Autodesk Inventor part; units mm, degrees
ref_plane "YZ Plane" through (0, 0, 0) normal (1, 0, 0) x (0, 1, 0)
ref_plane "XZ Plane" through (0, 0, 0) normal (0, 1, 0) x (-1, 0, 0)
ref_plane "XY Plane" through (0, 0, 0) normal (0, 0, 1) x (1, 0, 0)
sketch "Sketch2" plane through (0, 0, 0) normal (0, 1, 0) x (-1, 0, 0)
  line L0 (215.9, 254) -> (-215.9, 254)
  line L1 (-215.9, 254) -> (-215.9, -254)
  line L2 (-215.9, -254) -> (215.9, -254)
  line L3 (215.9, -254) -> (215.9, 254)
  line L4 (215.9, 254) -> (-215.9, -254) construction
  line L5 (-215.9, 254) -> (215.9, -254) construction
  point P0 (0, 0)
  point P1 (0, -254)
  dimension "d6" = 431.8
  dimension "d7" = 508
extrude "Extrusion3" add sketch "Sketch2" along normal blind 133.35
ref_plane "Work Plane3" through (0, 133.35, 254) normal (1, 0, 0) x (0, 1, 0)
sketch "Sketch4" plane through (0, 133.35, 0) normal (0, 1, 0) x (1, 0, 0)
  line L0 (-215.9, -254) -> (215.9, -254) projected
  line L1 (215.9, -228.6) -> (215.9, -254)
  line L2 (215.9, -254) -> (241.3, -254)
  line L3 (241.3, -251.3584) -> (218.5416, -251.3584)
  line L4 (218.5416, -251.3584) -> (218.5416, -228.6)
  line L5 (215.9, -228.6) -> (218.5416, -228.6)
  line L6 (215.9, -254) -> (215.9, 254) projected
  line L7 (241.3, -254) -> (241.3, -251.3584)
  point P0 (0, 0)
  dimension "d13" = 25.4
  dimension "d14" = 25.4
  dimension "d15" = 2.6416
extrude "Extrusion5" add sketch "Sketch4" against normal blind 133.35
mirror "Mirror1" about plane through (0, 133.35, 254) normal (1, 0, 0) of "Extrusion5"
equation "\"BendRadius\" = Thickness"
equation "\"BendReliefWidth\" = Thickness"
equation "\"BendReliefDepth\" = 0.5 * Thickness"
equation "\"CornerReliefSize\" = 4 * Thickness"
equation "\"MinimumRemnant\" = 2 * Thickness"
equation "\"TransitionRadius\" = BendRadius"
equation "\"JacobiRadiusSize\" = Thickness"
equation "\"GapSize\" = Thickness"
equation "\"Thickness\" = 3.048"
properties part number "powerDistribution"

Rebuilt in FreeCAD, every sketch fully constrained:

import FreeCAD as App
import Part
import Sketcher
Q = App.Units.Quantity


def add_polygon(sketch, points):
    """Adds a closed chain of lines whose ends are joined by coincident constraints."""
    first, n = sketch.GeometryCount, len(points)
    for a, b in zip(points, points[1:] + points[:1]):
        sketch.addGeometry(Part.LineSegment(App.Vector(*a, 0), App.Vector(*b, 0)), False)
    for i in range(n):
        sketch.addConstraint(Sketcher.Constraint("Coincident", first + i, 2, first + (i + 1) % n, 1))

doc = App.newDocument("Part")
body = doc.addObject("PartDesign::Body", "Body")

# Sketch on XZ plane
sketch1 = doc.addObject("Sketcher::SketchObject", "Sketch")
body.addObject(sketch1)
sketch1.AttachmentSupport = (doc.XZ_Plane, [""])
sketch1.MapMode = "FlatFace"
add_polygon(sketch1, [(-216, -254), (-216, 254), (216, 254), (216, -254)])  # lines 0-3
sketch1.addConstraint([
    Sketcher.Constraint("Vertical", 0),
    Sketcher.Constraint("Horizontal", 1),
    Sketcher.Constraint("Vertical", 2),
    Sketcher.Constraint("Horizontal", 3),
    Sketcher.Constraint("Symmetric", 0, 2, 2, 2, -1, 1),
    Sketcher.Constraint("DistanceX", 1, 1, 1, 2, Q("17 in")),
    Sketcher.Constraint("DistanceY", 0, 1, 0, 2, Q("20 in")),
])
pad1 = doc.addObject("PartDesign::Pad", "Pad")
body.addObject(pad1)
pad1.Profile = sketch1
pad1.Length = Q("5.25 in")
pad1.Reversed = True

# Sketch on XZ plane
sketch2 = doc.addObject("Sketcher::SketchObject", "Sketch001")
body.addObject(sketch2)
sketch2.AttachmentSupport = (doc.XZ_Plane, [""])
sketch2.MapMode = "FlatFace"
sketch2.AttachmentOffset = App.Placement(App.Vector(0, 0, -5.25 * 25.4), App.Rotation())
add_polygon(sketch2, [(218.5, 228.6), (215.9, 228.6), (215.9, 254), (241.3, 254), (241.3, 251.4), (218.5, 251.4)])  # lines 0-5
sketch2.addConstraint([
    Sketcher.Constraint("Horizontal", 0),
    Sketcher.Constraint("Vertical", 1),
    Sketcher.Constraint("Horizontal", 2),
    Sketcher.Constraint("Vertical", 3),
    Sketcher.Constraint("Horizontal", 4),
    Sketcher.Constraint("Vertical", 5),
    Sketcher.Constraint("Equal", 2, 1),
    Sketcher.Constraint("Equal", 0, 3),
    Sketcher.Constraint("DistanceX", 2, 1, 2, 2, Q("1 in")),
    Sketcher.Constraint("DistanceX", 0, 2, 0, 1, Q("0.104 in")),
    Sketcher.Constraint("DistanceY", -1, 1, 0, 2, Q("9 in")),
    Sketcher.Constraint("DistanceX", -1, 1, 0, 2, Q("8.5 in")),
])
pad2 = doc.addObject("PartDesign::Pad", "Pad001")
body.addObject(pad2)
pad2.Profile = sketch2
pad2.Length = Q("5.25 in")
doc.recompute()

mirrored = doc.addObject("PartDesign::Mirrored", "Mirrored")
body.addObject(mirrored)
mirrored.Originals = [pad2]
mirrored.MirrorPlane = (doc.YZ_Plane, [""])
body.Tip = mirrored

doc.recompute()
